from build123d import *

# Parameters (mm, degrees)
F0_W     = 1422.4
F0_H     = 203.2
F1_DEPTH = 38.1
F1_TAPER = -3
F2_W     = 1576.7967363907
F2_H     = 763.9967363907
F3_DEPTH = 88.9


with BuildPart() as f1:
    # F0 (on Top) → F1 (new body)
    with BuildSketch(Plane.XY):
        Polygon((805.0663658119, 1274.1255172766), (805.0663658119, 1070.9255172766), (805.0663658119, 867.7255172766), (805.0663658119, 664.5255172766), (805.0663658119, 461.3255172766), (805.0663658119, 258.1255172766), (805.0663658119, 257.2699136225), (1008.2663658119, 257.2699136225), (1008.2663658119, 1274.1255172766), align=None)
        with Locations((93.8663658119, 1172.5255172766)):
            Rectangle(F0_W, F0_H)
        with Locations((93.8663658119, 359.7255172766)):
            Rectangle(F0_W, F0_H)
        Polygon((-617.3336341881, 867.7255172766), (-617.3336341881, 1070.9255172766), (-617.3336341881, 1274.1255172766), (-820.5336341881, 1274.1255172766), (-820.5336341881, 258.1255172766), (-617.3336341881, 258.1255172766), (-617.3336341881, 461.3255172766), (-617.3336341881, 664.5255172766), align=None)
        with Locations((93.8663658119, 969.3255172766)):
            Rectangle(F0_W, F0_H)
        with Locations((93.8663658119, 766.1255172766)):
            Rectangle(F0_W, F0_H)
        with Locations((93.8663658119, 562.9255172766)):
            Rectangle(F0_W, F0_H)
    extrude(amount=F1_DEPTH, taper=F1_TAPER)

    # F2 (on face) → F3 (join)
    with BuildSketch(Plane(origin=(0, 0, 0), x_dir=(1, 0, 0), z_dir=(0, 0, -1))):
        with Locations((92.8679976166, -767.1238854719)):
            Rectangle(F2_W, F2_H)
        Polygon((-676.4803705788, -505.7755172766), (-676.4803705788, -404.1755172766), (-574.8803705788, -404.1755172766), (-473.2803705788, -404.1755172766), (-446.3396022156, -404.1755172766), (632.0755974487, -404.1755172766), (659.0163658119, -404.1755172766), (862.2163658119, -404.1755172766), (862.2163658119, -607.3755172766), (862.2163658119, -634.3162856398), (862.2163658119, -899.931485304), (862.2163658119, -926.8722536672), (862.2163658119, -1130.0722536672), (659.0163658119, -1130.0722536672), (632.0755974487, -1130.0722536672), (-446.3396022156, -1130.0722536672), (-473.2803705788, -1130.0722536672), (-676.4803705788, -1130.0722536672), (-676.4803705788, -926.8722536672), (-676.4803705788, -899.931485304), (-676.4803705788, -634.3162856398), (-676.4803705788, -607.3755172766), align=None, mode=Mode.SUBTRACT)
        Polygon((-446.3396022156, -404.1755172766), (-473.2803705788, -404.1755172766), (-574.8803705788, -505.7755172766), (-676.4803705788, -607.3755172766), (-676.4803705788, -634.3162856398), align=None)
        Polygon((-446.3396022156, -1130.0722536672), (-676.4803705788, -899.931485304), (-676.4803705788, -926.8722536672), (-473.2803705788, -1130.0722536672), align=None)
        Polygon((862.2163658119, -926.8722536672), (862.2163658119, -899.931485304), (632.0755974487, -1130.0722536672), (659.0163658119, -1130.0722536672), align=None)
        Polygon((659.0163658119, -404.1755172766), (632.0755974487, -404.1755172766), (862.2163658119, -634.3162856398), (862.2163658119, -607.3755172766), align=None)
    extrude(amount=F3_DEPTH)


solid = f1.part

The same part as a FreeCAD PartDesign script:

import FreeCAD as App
import Part
import Sketcher
from FreeCAD import Vector
Q = App.Units.Quantity

doc = App.newDocument("Part")
params = doc.addObject("Spreadsheet::Sheet", "Params")
for row, (alias, value) in enumerate([
    ("sketch1_width", "8 in"),
    ("sketch1_width2", "72 in"),
    ("sketch1_height", "40 in"),
    ("pad1_length", "1.5 in"),
    ("pad1_taper", "3 deg"),
    ("sketch2_width", "8 in"),
    ("pad2_length", "3.5 in"),
], start=1):
    params.set(f"A{row}", alias)
    params.set(f"B{row}", "=" + value)
    params.setAlias(f"B{row}", alias)

body = doc.addObject("PartDesign::Body", "Body")

sketch1 = body.newObject("Sketcher::SketchObject", "Sketch")
sketch1.AttachmentSupport = (doc.getObject("XY_Plane"), [""])
sketch1.MapMode = "FlatFace"
sketch1.addGeometry([
    Part.LineSegment(Vector(805.1, 258.1, 0), Vector(805.1, 257.3, 0)),
    Part.LineSegment(Vector(805.1, 257.3, 0), Vector(1008.3, 257.3, 0)),
    Part.LineSegment(Vector(1008.3, 257.3, 0), Vector(1008.3, 1274.1, 0)),
    Part.LineSegment(Vector(1008.3, 1274.1, 0), Vector(-820.5, 1274.1, 0)),
    Part.LineSegment(Vector(-820.5, 1274.1, 0), Vector(-820.5, 258.1, 0)),
    Part.LineSegment(Vector(-820.5, 258.1, 0), Vector(805.1, 258.1, 0)),
], False)
sketch1.addConstraint([
    Sketcher.Constraint("Coincident", 0, 2, 1, 1),
    Sketcher.Constraint("Coincident", 1, 2, 2, 1),
    Sketcher.Constraint("Coincident", 2, 2, 3, 1),
    Sketcher.Constraint("Coincident", 3, 2, 4, 1),
    Sketcher.Constraint("Coincident", 4, 2, 5, 1),
    Sketcher.Constraint("Coincident", 5, 2, 0, 1),
    Sketcher.Constraint("Vertical", 0),
    Sketcher.Constraint("Horizontal", 1),
    Sketcher.Constraint("Vertical", 2),
    Sketcher.Constraint("Horizontal", 3),
    Sketcher.Constraint("Vertical", 4),
    Sketcher.Constraint("Horizontal", 5),
    Sketcher.Constraint("DistanceX", 1, 1, 1, 2, Q("8 in")),
    Sketcher.Constraint("DistanceX", 3, 2, 3, 1, Q("72 in")),
    Sketcher.Constraint("DistanceY", 4, 2, 4, 1, Q("40 in")),
    Sketcher.Constraint("DistanceY", 0, 2, 0, 1, Q("0.855604 mm")),
    Sketcher.Constraint("DistanceX", -1, 1, 0, 2, Q("805.066366 mm")),
    Sketcher.Constraint("DistanceY", -1, 1, 0, 2, Q("257.269914 mm")),
])
sketch1.setExpression("Constraints[12]", "Params.sketch1_width")
sketch1.setExpression("Constraints[13]", "Params.sketch1_width2")
sketch1.setExpression("Constraints[14]", "Params.sketch1_height")
pad1 = body.newObject("PartDesign::Pad", "Pad")
pad1.Profile = sketch1
pad1.setExpression("Length", "Params.pad1_length")
pad1.setExpression("TaperAngle", "Params.pad1_taper")

sketch2 = body.newObject("Sketcher::SketchObject", "Sketch001")
sketch2.AttachmentSupport = (doc.getObject("XY_Plane"), [""])
sketch2.MapMode = "FlatFace"
sketch2.addGeometry([
    Part.LineSegment(Vector(-696, 385, 0), Vector(-696, 1149, 0)),
    Part.LineSegment(Vector(-696, 1149, 0), Vector(881, 1149, 0)),
    Part.LineSegment(Vector(881, 1149, 0), Vector(881, 385, 0)),
    Part.LineSegment(Vector(881, 385, 0), Vector(-696, 385, 0)),
    Part.LineSegment(Vector(-676, 1130, 0), Vector(-676, 927, 0)),
    Part.LineSegment(Vector(-676, 927, 0), Vector(-473, 1130, 0)),
    Part.LineSegment(Vector(-473, 1130, 0), Vector(-676, 1130, 0)),
    Part.LineSegment(Vector(-676, 900, 0), Vector(-676, 634, 0)),
    Part.LineSegment(Vector(-676, 634, 0), Vector(-446, 404, 0)),
    Part.LineSegment(Vector(-446, 404, 0), Vector(632, 404, 0)),
    Part.LineSegment(Vector(632, 404, 0), Vector(862, 634, 0)),
    Part.LineSegment(Vector(862, 634, 0), Vector(862, 900, 0)),
    Part.LineSegment(Vector(862, 900, 0), Vector(632, 1130, 0)),
    Part.LineSegment(Vector(632, 1130, 0), Vector(-446, 1130, 0)),
    Part.LineSegment(Vector(-446, 1130, 0), Vector(-676, 900, 0)),
    Part.LineSegment(Vector(659, 404, 0), Vector(862, 404, 0)),
    Part.LineSegment(Vector(862, 404, 0), Vector(862, 607, 0)),
    Part.LineSegment(Vector(862, 607, 0), Vector(659, 404, 0)),
    Part.LineSegment(Vector(862, 927, 0), Vector(862, 1130, 0)),
    Part.LineSegment(Vector(862, 1130, 0), Vector(659, 1130, 0)),
    Part.LineSegment(Vector(659, 1130, 0), Vector(862, 927, 0)),
    Part.LineSegment(Vector(-676, 607, 0), Vector(-676, 404, 0)),
    Part.LineSegment(Vector(-676, 404, 0), Vector(-473, 404, 0)),
    Part.LineSegment(Vector(-473, 404, 0), Vector(-676, 607, 0)),
], False)
sketch2.addConstraint([
    Sketcher.Constraint("Coincident", 0, 2, 1, 1),
    Sketcher.Constraint("Coincident", 1, 2, 2, 1),
    Sketcher.Constraint("Coincident", 2, 2, 3, 1),
    Sketcher.Constraint("Coincident", 3, 2, 0, 1),
    Sketcher.Constraint("Coincident", 4, 2, 5, 1),
    Sketcher.Constraint("Coincident", 5, 2, 6, 1),
    Sketcher.Constraint("Coincident", 6, 2, 4, 1),
    Sketcher.Constraint("Coincident", 7, 2, 8, 1),
    Sketcher.Constraint("Coincident", 8, 2, 9, 1),
    Sketcher.Constraint("Coincident", 9, 2, 10, 1),
    Sketcher.Constraint("Coincident", 10, 2, 11, 1),
    Sketcher.Constraint("Coincident", 11, 2, 12, 1),
    Sketcher.Constraint("Coincident", 12, 2, 13, 1),
    Sketcher.Constraint("Coincident", 13, 2, 14, 1),
    Sketcher.Constraint("Coincident", 14, 2, 7, 1),
    Sketcher.Constraint("Coincident", 15, 2, 16, 1),
    Sketcher.Constraint("Coincident", 16, 2, 17, 1),
    Sketcher.Constraint("Coincident", 17, 2, 15, 1),
    Sketcher.Constraint("Coincident", 18, 2, 19, 1),
    Sketcher.Constraint("Coincident", 19, 2, 20, 1),
    Sketcher.Constraint("Coincident", 20, 2, 18, 1),
    Sketcher.Constraint("Coincident", 21, 2, 22, 1),
    Sketcher.Constraint("Coincident", 22, 2, 23, 1),
    Sketcher.Constraint("Coincident", 23, 2, 21, 1),
    Sketcher.Constraint("Vertical", 0),
    Sketcher.Constraint("Horizontal", 1),
    Sketcher.Constraint("Vertical", 2),
    Sketcher.Constraint("Horizontal", 3),
    Sketcher.Constraint("Vertical", 4),
    Sketcher.Constraint("Horizontal", 6),
    Sketcher.Constraint("Vertical", 7),
    Sketcher.Constraint("Horizontal", 9),
    Sketcher.Constraint("Vertical", 11),
    Sketcher.Constraint("Horizontal", 13),
    Sketcher.Constraint("Horizontal", 15),
    Sketcher.Constraint("Vertical", 16),
    Sketcher.Constraint("Vertical", 18),
    Sketcher.Constraint("Horizontal", 19),
    Sketcher.Constraint("Vertical", 21),
    Sketcher.Constraint("Horizontal", 22),
    Sketcher.Constraint("Perpendicular", 5, 8),
    Sketcher.Constraint("Perpendicular", 8, 10),
    Sketcher.Constraint("Perpendicular", 10, 12),
    Sketcher.Constraint("Perpendicular", 12, 14),
    Sketcher.Constraint("Parallel", 14, 17),
    Sketcher.Constraint("Perpendicular", 17, 20),
    Sketcher.Constraint("Parallel", 20, 23),
    Sketcher.Constraint("Horizontal", 7, 2, 10, 2),
    Sketcher.Constraint("Horizontal", 6, 2, 12, 2),
    Sketcher.Constraint("Horizontal", 11, 2, 14, 2),
    Sketcher.Constraint("Horizontal", 9, 2, 15, 2),
    Sketcher.Constraint("Horizontal", 13, 2, 18, 2),
    Sketcher.Constraint("Horizontal", 4, 2, 20, 2),
    Sketcher.Constraint("Horizontal", 17, 2, 21, 2),
    Sketcher.Constraint("Horizontal", 16, 2, 23, 2),
    Sketcher.Constraint("Vertical", 6, 2, 7, 2),
    Sketcher.Constraint("Vertical", 9, 2, 12, 2),
    Sketcher.Constraint("Vertical", 8, 2, 13, 2),
    Sketcher.Constraint("Vertical", 11, 2, 15, 2),
    Sketcher.Constraint("Vertical", 16, 2, 18, 2),
    Sketcher.Constraint("Vertical", 17, 2, 19, 2),
    Sketcher.Constraint("Vertical", 14, 2, 21, 2),
    Sketcher.Constraint("DistanceX", 6, 2, 6, 1, Q("8 in")),
    Sketcher.Constraint("DistanceX", 0, 2, 4, 2, Q("0.75 in")),
    Sketcher.Constraint("DistanceY", 4, 2, 0, 2, Q("8.75 in")),
    Sketcher.Constraint("DistanceY", 3, 2, 8, 2, Q("0.75 in")),
    Sketcher.Constraint("DistanceX", 10, 2, 2, 2, Q("0.75 in")),
    Sketcher.Constraint("DistanceX", 9, 1, 9, 2, Q("1078.4152 mm")),
    Sketcher.Constraint("DistanceY", 7, 2, 7, 1, Q("265.6152 mm")),
    Sketcher.Constraint("DistanceX", 1, 1, 1, 2, Q("1576.796736 mm")),
    Sketcher.Constraint("DistanceX", 0, 2, -1, 1, Q("695.530371 mm")),
    Sketcher.Constraint("DistanceY", -1, 1, 0, 2, Q("1149.122254 mm")),
])
sketch2.setExpression("Constraints[62]", "Params.sketch2_width")
pad2 = body.newObject("PartDesign::Pad", "Pad001")
pad2.Profile = sketch2
pad2.setExpression("Length", "Params.pad2_length")
pad2.Reversed = True

doc.recompute()
